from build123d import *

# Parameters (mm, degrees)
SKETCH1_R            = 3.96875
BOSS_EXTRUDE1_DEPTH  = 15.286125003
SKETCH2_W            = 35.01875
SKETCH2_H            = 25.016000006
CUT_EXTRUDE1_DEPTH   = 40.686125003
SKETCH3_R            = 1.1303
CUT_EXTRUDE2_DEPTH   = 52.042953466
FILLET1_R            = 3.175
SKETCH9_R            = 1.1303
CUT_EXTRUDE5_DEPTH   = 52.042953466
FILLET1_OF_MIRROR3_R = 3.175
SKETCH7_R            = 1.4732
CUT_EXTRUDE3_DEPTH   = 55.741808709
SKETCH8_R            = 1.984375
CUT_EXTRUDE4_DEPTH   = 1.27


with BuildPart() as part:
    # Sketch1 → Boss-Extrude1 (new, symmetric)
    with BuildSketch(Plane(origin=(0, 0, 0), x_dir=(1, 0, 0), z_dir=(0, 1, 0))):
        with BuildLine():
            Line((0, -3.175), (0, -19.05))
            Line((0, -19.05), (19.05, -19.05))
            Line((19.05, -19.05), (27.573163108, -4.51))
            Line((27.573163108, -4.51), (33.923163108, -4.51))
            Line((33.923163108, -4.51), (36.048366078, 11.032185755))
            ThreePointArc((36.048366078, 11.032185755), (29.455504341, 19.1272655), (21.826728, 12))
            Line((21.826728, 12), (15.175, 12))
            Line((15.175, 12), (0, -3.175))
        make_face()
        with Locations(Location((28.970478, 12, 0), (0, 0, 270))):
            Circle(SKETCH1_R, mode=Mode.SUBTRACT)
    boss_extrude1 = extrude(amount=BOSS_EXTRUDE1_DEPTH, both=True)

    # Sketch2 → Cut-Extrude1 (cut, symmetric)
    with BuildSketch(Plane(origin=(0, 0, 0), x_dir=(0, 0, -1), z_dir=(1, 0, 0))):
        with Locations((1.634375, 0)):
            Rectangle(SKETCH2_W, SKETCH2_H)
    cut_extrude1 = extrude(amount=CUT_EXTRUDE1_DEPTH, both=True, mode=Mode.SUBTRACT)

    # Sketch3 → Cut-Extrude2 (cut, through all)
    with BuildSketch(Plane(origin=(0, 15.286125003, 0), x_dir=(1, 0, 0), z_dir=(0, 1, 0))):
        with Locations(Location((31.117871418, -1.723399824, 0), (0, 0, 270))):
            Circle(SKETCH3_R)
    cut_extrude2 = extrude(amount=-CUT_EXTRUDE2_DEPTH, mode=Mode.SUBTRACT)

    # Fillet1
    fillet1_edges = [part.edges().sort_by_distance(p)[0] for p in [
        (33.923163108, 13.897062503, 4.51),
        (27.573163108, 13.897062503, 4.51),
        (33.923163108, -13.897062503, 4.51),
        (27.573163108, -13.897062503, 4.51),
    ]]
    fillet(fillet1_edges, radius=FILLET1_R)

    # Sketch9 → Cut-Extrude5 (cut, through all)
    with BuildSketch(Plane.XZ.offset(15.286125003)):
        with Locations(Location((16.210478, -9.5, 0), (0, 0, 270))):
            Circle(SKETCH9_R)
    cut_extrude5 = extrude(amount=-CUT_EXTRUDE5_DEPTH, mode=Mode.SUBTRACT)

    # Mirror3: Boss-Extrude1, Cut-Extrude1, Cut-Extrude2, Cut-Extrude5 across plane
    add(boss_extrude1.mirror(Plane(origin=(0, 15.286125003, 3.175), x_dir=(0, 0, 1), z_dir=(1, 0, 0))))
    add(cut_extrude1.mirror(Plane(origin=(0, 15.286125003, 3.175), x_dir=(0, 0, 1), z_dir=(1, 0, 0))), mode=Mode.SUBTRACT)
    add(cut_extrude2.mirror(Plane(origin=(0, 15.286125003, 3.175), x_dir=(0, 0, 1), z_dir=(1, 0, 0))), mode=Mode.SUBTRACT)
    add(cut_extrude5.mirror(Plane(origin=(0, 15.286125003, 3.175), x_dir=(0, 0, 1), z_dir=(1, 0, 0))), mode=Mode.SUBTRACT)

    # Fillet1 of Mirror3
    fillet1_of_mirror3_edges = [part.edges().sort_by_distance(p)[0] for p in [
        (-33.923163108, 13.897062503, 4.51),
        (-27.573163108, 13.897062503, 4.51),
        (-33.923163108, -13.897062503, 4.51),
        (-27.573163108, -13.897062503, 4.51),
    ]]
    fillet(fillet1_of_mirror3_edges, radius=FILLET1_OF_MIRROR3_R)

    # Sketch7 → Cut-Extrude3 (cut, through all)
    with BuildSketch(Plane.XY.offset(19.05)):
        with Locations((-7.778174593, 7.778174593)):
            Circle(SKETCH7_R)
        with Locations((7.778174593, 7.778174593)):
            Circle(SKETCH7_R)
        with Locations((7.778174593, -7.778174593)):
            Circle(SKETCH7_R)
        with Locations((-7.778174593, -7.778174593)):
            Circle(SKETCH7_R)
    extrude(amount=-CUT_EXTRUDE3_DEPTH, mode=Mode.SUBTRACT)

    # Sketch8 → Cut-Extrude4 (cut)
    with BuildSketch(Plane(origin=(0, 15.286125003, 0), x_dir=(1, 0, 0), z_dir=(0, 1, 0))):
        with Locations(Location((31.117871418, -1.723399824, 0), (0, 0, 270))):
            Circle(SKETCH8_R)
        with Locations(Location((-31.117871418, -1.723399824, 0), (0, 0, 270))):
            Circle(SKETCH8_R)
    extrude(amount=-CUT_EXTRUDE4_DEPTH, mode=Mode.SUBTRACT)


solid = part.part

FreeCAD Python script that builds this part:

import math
import FreeCAD as App
import Part
import Sketcher
Q = App.Units.Quantity


def edges_at(feature, points):
    """Names of the edges that pass closest to the given points."""
    edges = feature.Shape.Edges
    near = lambda p: min(range(len(edges)), key=lambda i: edges[i].distToShape(Part.Vertex(*p))[0])
    return sorted({f"Edge{near(p) + 1}" for p in points})


def add_polygon(sketch, points):
    """Adds a closed chain of lines whose ends are joined by coincident constraints."""
    first, n = sketch.GeometryCount, len(points)
    for a, b in zip(points, points[1:] + points[:1]):
        sketch.addGeometry(Part.LineSegment(App.Vector(*a, 0), App.Vector(*b, 0)), False)
    for i in range(n):
        sketch.addConstraint(Sketcher.Constraint("Coincident", first + i, 2, first + (i + 1) % n, 1))

doc = App.newDocument("Part")
body = doc.addObject("PartDesign::Body", "Body")

# Sketch on XZ plane
sketch1 = body.newObject("Sketcher::SketchObject", "Sketch")
sketch1.AttachmentSupport = (doc.getObject("XZ_Plane"), [""])
sketch1.MapMode = "FlatFace"
sketch1.addGeometry([
    Part.LineSegment(App.Vector(0, 3.175, 0), App.Vector(0, 19.05, 0)),  # 0
    Part.LineSegment(App.Vector(0, 19.05, 0), App.Vector(19.05, 19.05, 0)),  # 1
    Part.LineSegment(App.Vector(19.05, 19.05, 0), App.Vector(27.573163, 4.51, 0)),  # 2
    Part.LineSegment(App.Vector(27.573163, 4.51, 0), App.Vector(33.923163, 4.51, 0)),  # 3
    Part.LineSegment(App.Vector(33.923163, 4.51, 0), App.Vector(36.048366, -11.032186, 0)),  # 4
    Part.ArcOfCircle(Part.Circle(App.Vector(28.970478, -12, 0), App.Vector(0, 0, 1), 7.14375), math.radians(180), math.radians(367.786207)),  # 5
    Part.LineSegment(App.Vector(21.826728, -12, 0), App.Vector(15.175, -12, 0)),  # 6
    Part.LineSegment(App.Vector(15.175, -12, 0), App.Vector(0, 3.175, 0)),  # 7
    Part.Circle(App.Vector(28.970478, -12, 0), App.Vector(0, 0, 1), 3.96875),  # 8
], False)
sketch1.addConstraint([
    Sketcher.Constraint("Coincident", 0, 2, 1, 1),
    Sketcher.Constraint("Coincident", 1, 2, 2, 1),
    Sketcher.Constraint("Coincident", 2, 2, 3, 1),
    Sketcher.Constraint("Coincident", 3, 2, 4, 1),
    Sketcher.Constraint("Tangent", 4, 2, 5, 2),
    Sketcher.Constraint("Coincident", 5, 1, 6, 1),
    Sketcher.Constraint("Coincident", 6, 2, 7, 1),
    Sketcher.Constraint("Coincident", 7, 2, 0, 1),
    Sketcher.Constraint("Vertical", 0),
    Sketcher.Constraint("Horizontal", 1),
    Sketcher.Constraint("Horizontal", 3),
    Sketcher.Constraint("Horizontal", 6),
    Sketcher.Constraint("Coincident", 8, 3, 5, 3),
    Sketcher.Constraint("PointOnObject", 0, 2, -2),
    Sketcher.Constraint("Horizontal", 8, 3, 5, 1),
    Sketcher.Constraint("Diameter", 8, Q("0.3125 in")),
    Sketcher.Constraint("Angle", 7, Q("135 deg")),
    Sketcher.Constraint("Radius", 5, Q("0.28125 in")),
    Sketcher.Constraint("DistanceX", 1, 1, 1, 2, Q("0.75 in")),
    Sketcher.Constraint("DistanceX", 3, 1, 3, 2, Q("0.25 in")),
    Sketcher.Constraint("DistanceY", 0, 1, 0, 2, Q("0.625 in")),
    Sketcher.Constraint("DistanceY", -1, 1, 0, 2, Q("0.75 in")),
    Sketcher.Constraint("DistanceY", 5, 3, 2, 2, Q("0.65 in")),
    Sketcher.Constraint("DistanceY", 5, 3, -1, 1, Q("12 mm")),
    Sketcher.Constraint("Distance", 2, Q("16.853958 mm")),
    Sketcher.Constraint("Distance", 4, Q("15.686811 mm")),
])
pad1 = body.newObject("PartDesign::Pad", "Pad")
pad1.Profile = sketch1
pad1.Length = 30.57225
pad1.Midplane = True

# Sketch on YZ plane
sketch2 = body.newObject("Sketcher::SketchObject", "Sketch001")
sketch2.AttachmentSupport = (doc.getObject("YZ_Plane"), [""])
sketch2.MapMode = "FlatFace"
add_polygon(sketch2, [(12.508, 15.875), (-12.508, 15.875), (-12.508, -19.14375), (12.508, -19.14375)])  # lines 0-3
sketch2.addConstraint([
    Sketcher.Constraint("Horizontal", 0),
    Sketcher.Constraint("Vertical", 1),
    Sketcher.Constraint("Horizontal", 2),
    Sketcher.Constraint("Vertical", 3),
    Sketcher.Constraint("DistanceY", -1, 1, 0, 2, Q("0.625 in")),
    Sketcher.Constraint("DistanceX", 0, 2, 0, 1, Q("25.016 mm")),
    Sketcher.Constraint("DistanceY", 1, 2, 1, 1, Q("35.01875 mm")),
    Sketcher.Constraint("DistanceX", 0, 2, -1, 1, Q("12.508 mm")),
])
pocket1 = body.newObject("PartDesign::Pocket", "Pocket")
pocket1.Profile = sketch2
pocket1.Length = 81.37225
pocket1.Midplane = True

# Sketch on XZ plane
sketch3 = body.newObject("Sketcher::SketchObject", "Sketch002")
sketch3.AttachmentSupport = (doc.getObject("XZ_Plane"), [""])
sketch3.MapMode = "FlatFace"
sketch3.AttachmentOffset = App.Placement(App.Vector(0, 0, -15.286125), App.Rotation())
sketch3.addGeometry(Part.Circle(App.Vector(31.117871, 1.7234, 0), App.Vector(0, 0, 1), 1.1303), False)
sketch3.addConstraint([
    Sketcher.Constraint("Diameter", 0, Q("0.089 in")),
    Sketcher.Constraint("DistanceY", -1, 1, 0, 3, Q("1.7234 mm")),
    Sketcher.Constraint("DistanceX", -1, 1, 0, 3, Q("31.117871 mm")),
])
pocket2 = body.newObject("PartDesign::Pocket", "Pocket001")
pocket2.Profile = sketch3
pocket2.Type = "ThroughAll"
pocket2.Reversed = True
doc.recompute()

fillet = body.newObject("PartDesign::Fillet", "Fillet")
fillet.Base = (pocket2, edges_at(pocket2, [
    (33.923, 13.897, 4.51),
    (27.573, 13.897, 4.51),
    (33.923, -13.897, 4.51),
    (27.573, -13.897, 4.51),
]))
fillet.Radius = Q("0.125 in")

# Sketch on XZ plane
sketch4 = body.newObject("Sketcher::SketchObject", "Sketch003")
sketch4.AttachmentSupport = (doc.getObject("XZ_Plane"), [""])
sketch4.MapMode = "FlatFace"
sketch4.AttachmentOffset = App.Placement(App.Vector(0, 0, 15.286125), App.Rotation())
sketch4.addGeometry(Part.Circle(App.Vector(16.210478, -9.5, 0), App.Vector(0, 0, 1), 1.1303), False)
sketch4.addConstraint([
    Sketcher.Constraint("Diameter", 0, Q("0.089 in")),
    Sketcher.Constraint("DistanceY", 0, 3, -1, 1, Q("9.5 mm")),
    Sketcher.Constraint("DistanceX", -1, 1, 0, 3, Q("16.210478 mm")),
])
pocket3 = body.newObject("PartDesign::Pocket", "Pocket002")
pocket3.Profile = sketch4
pocket3.Type = "ThroughAll"
doc.recompute()

mirrored = body.newObject("PartDesign::Mirrored", "Mirrored")
mirrored.Originals = [pad1, pocket1, pocket2, pocket3]
mirrored.MirrorPlane = (doc.getObject("YZ_Plane"), [""])
body.Tip = mirrored
doc.recompute()

fillet2 = body.newObject("PartDesign::Fillet", "Fillet001")
fillet2.Base = (mirrored, edges_at(mirrored, [
    (-33.923, 13.897, 4.51),
    (-27.573, 13.897, 4.51),
    (-33.923, -13.897, 4.51),
    (-27.573, -13.897, 4.51),
]))
fillet2.Radius = Q("0.125 in")

# Sketch on XY plane
sketch5 = body.newObject("Sketcher::SketchObject", "Sketch004")
sketch5.AttachmentSupport = (doc.getObject("XY_Plane"), [""])
sketch5.MapMode = "FlatFace"
sketch5.AttachmentOffset = App.Placement(App.Vector(0, 0, 0.75 * 25.4), App.Rotation())
sketch5.addGeometry([
    Part.Circle(App.Vector(-7.778175, 7.778175, 0), App.Vector(0, 0, 1), 1.4732),
    Part.Circle(App.Vector(7.778175, 7.778175, 0), App.Vector(0, 0, 1), 1.4732),
    Part.Circle(App.Vector(7.778175, -7.778175, 0), App.Vector(0, 0, 1), 1.4732),
    Part.Circle(App.Vector(-7.778175, -7.778175, 0), App.Vector(0, 0, 1), 1.4732),
], False)
sketch5.addConstraint([
    Sketcher.Constraint("Equal", 0, 1),
    Sketcher.Constraint("Equal", 1, 2),
    Sketcher.Constraint("Equal", 2, 3),
    Sketcher.Constraint("Symmetric", 0, 3, 2, 3, -1, 1),
    Sketcher.Constraint("Symmetric", 1, 3, 3, 3, -1, 1),
    Sketcher.Constraint("Symmetric", 0, 3, 1, 3, -2),
    Sketcher.Constraint("Diameter", 0, Q("0.116 in")),
    Sketcher.Constraint("DistanceX", 0, 3, 1, 3, Q("15.556349 mm")),
    Sketcher.Constraint("DistanceY", 2, 3, 1, 3, Q("15.556349 mm")),
])
pocket4 = body.newObject("PartDesign::Pocket", "Pocket003")
pocket4.Profile = sketch5
pocket4.Type = "ThroughAll"

# Sketch on XZ plane
sketch6 = body.newObject("Sketcher::SketchObject", "Sketch005")
sketch6.AttachmentSupport = (doc.getObject("XZ_Plane"), [""])
sketch6.MapMode = "FlatFace"
sketch6.AttachmentOffset = App.Placement(App.Vector(0, 0, -15.286125), App.Rotation())
sketch6.addGeometry([
    Part.Circle(App.Vector(31.117871, 1.7234, 0), App.Vector(0, 0, 1), 1.984375),
    Part.Circle(App.Vector(-31.117871, 1.7234, 0), App.Vector(0, 0, 1), 1.984375),
], False)
sketch6.addConstraint([
    Sketcher.Constraint("Equal", 0, 1),
    Sketcher.Constraint("Symmetric", 0, 3, 1, 3, -2),
    Sketcher.Constraint("Diameter", 0, Q("0.15625 in")),
    Sketcher.Constraint("DistanceY", -1, 1, 0, 3, Q("1.7234 mm")),
    Sketcher.Constraint("DistanceX", -1, 1, 0, 3, Q("31.117871 mm")),
])
pocket5 = body.newObject("PartDesign::Pocket", "Pocket004")
pocket5.Profile = sketch6
pocket5.Length = Q("0.05 in")
pocket5.Reversed = True

doc.recompute()
